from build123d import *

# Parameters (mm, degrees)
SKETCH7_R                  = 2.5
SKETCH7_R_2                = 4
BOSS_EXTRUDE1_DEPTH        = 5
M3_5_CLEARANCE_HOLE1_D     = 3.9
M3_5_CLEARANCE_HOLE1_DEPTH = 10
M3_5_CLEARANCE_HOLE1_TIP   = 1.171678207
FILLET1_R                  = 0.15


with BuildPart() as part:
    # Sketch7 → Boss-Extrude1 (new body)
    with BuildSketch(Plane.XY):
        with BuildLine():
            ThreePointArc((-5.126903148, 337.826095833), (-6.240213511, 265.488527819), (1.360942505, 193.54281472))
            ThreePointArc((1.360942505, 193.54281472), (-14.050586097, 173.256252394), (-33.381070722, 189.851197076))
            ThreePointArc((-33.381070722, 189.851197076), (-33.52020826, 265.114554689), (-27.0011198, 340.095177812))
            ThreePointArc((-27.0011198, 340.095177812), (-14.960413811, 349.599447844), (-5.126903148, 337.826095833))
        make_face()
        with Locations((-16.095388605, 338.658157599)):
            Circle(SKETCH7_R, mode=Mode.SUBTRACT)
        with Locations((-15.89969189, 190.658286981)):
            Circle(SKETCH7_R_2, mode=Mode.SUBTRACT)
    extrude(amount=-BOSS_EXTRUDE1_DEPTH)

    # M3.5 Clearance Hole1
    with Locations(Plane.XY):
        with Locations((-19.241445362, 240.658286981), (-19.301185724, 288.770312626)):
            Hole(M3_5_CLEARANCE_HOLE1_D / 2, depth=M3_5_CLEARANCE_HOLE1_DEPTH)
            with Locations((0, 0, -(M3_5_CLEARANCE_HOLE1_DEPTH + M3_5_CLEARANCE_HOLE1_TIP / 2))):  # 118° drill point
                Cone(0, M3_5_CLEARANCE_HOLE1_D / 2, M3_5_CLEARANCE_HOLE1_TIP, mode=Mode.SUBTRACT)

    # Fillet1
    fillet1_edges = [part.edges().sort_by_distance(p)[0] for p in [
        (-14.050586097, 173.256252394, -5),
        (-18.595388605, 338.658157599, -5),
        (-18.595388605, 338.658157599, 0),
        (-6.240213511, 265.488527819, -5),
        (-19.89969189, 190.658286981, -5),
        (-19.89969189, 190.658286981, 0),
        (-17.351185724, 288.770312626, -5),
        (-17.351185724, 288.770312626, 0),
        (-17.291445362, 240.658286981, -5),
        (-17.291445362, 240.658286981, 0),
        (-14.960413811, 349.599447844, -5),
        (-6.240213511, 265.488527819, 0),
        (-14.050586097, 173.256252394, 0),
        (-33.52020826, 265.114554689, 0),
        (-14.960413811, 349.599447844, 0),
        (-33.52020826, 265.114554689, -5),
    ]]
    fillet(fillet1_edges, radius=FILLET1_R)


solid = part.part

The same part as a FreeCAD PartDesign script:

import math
import FreeCAD as App
import Part
import Sketcher


def edges_at(feature, points):
    """Names of the edges that pass closest to the given points."""
    edges = feature.Shape.Edges
    near = lambda p: min(range(len(edges)), key=lambda i: edges[i].distToShape(Part.Vertex(*p))[0])
    return sorted({f"Edge{near(p) + 1}" for p in points})

doc = App.newDocument("Part")
body = doc.addObject("PartDesign::Body", "Body")

# Sketch on XY plane
sketch1 = doc.addObject("Sketcher::SketchObject", "Sketch")
body.addObject(sketch1)
sketch1.AttachmentSupport = (doc.XY_Plane, [""])
sketch1.MapMode = "FlatFace"
sketch1.addGeometry(Part.ArcOfCircle(Part.Circle(App.Vector(593.2, 292.4, 0), App.Vector(0, 0, 1), 600), math.radians(175.66), math.radians(189.49)), False)
sketch1.addGeometry(Part.ArcOfCircle(Part.Circle(App.Vector(-16.1, 338.7, 0), App.Vector(0, 0, 1), 11), math.radians(-4), math.radians(172)), False)
sketch1.addGeometry(Part.ArcOfCircle(Part.Circle(App.Vector(815.7, 229.1, 0), App.Vector(0, 0, 1), 850), math.radians(172.49), math.radians(182.64)), False)
sketch1.addGeometry(Part.ArcOfCircle(Part.Circle(App.Vector(-15.9, 190.7, 0), App.Vector(0, 0, 1), 17.5), math.radians(-177), math.radians(9)), False)
sketch1.addGeometry(Part.Circle(App.Vector(-15.9, 190.7, 0), App.Vector(0, 0, 1), 4), False)
sketch1.addGeometry(Part.Circle(App.Vector(-16.1, 338.7, 0), App.Vector(0, 0, 1), 2.5), False)
sketch1.addConstraint(Sketcher.Constraint("Tangent", 0, 1, 1, 1))
sketch1.addConstraint(Sketcher.Constraint("Tangent", 1, 2, 2, 1))
sketch1.addConstraint(Sketcher.Constraint("Tangent", 2, 2, 3, 1))
sketch1.addConstraint(Sketcher.Constraint("Tangent", 3, 2, 0, 2))
sketch1.addConstraint(Sketcher.Constraint("Coincident", 4, 3, 3, 3))
sketch1.addConstraint(Sketcher.Constraint("Coincident", 5, 3, 1, 3))
sketch1.addConstraint(Sketcher.Constraint("Diameter", 4, 8.0))
sketch1.addConstraint(Sketcher.Constraint("Diameter", 5, 5.0))
sketch1.addConstraint(Sketcher.Constraint("Radius", 0, 600.0))
sketch1.addConstraint(Sketcher.Constraint("Radius", 1, 11.0))
sketch1.addConstraint(Sketcher.Constraint("Radius", 2, 850.0))
sketch1.addConstraint(Sketcher.Constraint("Radius", 3, 17.5))
sketch1.addConstraint(Sketcher.Constraint("DistanceY", 2, 3, 0, 3, 63.388202))
sketch1.addConstraint(Sketcher.Constraint("DistanceX", -1, 1, 0, 3, 593.154122))
sketch1.addConstraint(Sketcher.Constraint("DistanceY", -1, 1, 0, 3, 292.440909))
sketch1.addConstraint(Sketcher.Constraint("DistanceX", 1, 3, -1, 1, 16.095389))
pad1 = doc.addObject("PartDesign::Pad", "Pad")
body.addObject(pad1)
pad1.Profile = sketch1
pad1.Length = 5
pad1.Reversed = True

# Sketch on XY plane
sketch2 = doc.addObject("Sketcher::SketchObject", "Sketch001")
body.addObject(sketch2)
sketch2.AttachmentSupport = (doc.XY_Plane, [""])
sketch2.MapMode = "FlatFace"
sketch2.addGeometry(Part.Circle(App.Vector(-19.2, 240.7, 0), App.Vector(0, 0, 1), 1.9), False)
sketch2.addGeometry(Part.Circle(App.Vector(-19.3, 288.8, 0), App.Vector(0, 0, 1), 1.9), False)
sketch2.addConstraint(Sketcher.Constraint("Equal", 0, 1))
sketch2.addConstraint(Sketcher.Constraint("Diameter", 0, 3.9))
sketch2.addConstraint(Sketcher.Constraint("DistanceX", 1, 3, 0, 3, 0.05974))
sketch2.addConstraint(Sketcher.Constraint("DistanceX", 0, 3, -1, 1, 19.241445))
sketch2.addConstraint(Sketcher.Constraint("DistanceY", -1, 1, 0, 3, 240.658287))
sketch2.addConstraint(Sketcher.Constraint("DistanceY", -1, 1, 1, 3, 288.770313))
doc.recompute()
hole = doc.addObject("PartDesign::Hole", "Hole")
body.addObject(hole)
hole.Profile = sketch2
hole.ThreadType = "None"
hole.Diameter = 3.9
hole.DepthType = "Dimension"
hole.Depth = 10
hole.DrillPoint = "Angled"
hole.DrillPointAngle = 118
doc.recompute()

fillet = doc.addObject("PartDesign::Fillet", "Fillet")
body.addObject(fillet)
fillet.Base = (hole, edges_at(hole, [
    (-14.051, 173.256, -5),
    (-18.595, 338.658, -5),
    (-18.595, 338.658, 0),
    (-6.24, 265.489, -5),
    (-19.9, 190.658, -5),
    (-19.9, 190.658, 0),
    (-17.351, 288.77, -5),
    (-17.351, 288.77, 0),
    (-17.291, 240.658, -5),
    (-17.291, 240.658, 0),
    (-14.96, 349.599, -5),
    (-6.24, 265.489, 0),
    (-14.051, 173.256, 0),
    (-33.52, 265.115, 0),
    (-14.96, 349.599, 0),
    (-33.52, 265.115, -5),
]))
fillet.Radius = 0.15

doc.recompute()
